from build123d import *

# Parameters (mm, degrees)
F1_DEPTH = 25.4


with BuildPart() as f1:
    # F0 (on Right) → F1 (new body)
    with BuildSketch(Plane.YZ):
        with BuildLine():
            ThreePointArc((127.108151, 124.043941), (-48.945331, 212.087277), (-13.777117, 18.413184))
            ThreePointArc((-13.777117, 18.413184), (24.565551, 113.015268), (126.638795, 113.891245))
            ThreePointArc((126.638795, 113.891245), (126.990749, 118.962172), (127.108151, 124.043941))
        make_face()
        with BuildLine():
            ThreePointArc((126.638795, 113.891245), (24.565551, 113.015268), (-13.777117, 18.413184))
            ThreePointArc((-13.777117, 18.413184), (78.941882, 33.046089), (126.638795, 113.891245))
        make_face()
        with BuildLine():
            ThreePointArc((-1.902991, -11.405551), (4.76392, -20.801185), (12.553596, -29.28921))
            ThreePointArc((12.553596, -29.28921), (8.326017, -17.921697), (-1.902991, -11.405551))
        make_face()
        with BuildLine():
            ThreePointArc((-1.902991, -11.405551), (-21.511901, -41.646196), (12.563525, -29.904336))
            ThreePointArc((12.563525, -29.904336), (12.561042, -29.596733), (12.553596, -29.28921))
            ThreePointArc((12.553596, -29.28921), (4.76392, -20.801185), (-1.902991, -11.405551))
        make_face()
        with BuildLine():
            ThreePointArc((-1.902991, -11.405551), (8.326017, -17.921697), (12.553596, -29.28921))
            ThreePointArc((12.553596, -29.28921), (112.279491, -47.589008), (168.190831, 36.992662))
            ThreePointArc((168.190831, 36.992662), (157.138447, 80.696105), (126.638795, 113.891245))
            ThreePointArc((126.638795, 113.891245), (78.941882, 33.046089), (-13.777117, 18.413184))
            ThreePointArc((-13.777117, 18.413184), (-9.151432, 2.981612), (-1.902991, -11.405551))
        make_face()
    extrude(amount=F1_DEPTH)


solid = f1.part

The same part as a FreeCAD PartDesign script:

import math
import FreeCAD as App
import Part
import Sketcher

doc = App.newDocument("Part")
params = doc.addObject("Spreadsheet::Sheet", "Params")
for row, (alias, value) in enumerate([
    ("pad1_length", "1 in"),
], start=1):
    params.set(f"A{row}", alias)
    params.set(f"B{row}", "=" + value)
    params.setAlias(f"B{row}", alias)

body = doc.addObject("PartDesign::Body", "Body")

# Sketch on YZ plane
sketch1 = body.newObject("Sketcher::SketchObject", "Sketch")
sketch1.AttachmentSupport = (doc.getObject("YZ_Plane"), [""])
sketch1.MapMode = "FlatFace"
sketch1.addGeometry([
    Part.ArcOfCircle(Part.Circle(App.Vector(17.066427, 124.043941, 0), App.Vector(0, 0, 1), 110.041724), math.radians(0), math.radians(253.722514)),  # 0
    Part.ArcOfCircle(Part.Circle(App.Vector(76.258317, 36.99265, 0), App.Vector(0, 0, 1), 91.932453), math.radians(-168.340264), math.radians(-148.233827)),  # 1
    Part.ArcOfCircle(Part.Circle(App.Vector(-6.497219, -29.904336, 0), App.Vector(0, 0, 1), 19.060744), math.radians(76.052608), math.radians(359.999999)),  # 2
    Part.ArcOfCircle(Part.Circle(App.Vector(-6.50025, -29.904409, 0), App.Vector(0, 0, 1), 19.063775), math.radians(0.00022), math.radians(1.849289)),  # 3
    Part.ArcOfCircle(Part.Circle(App.Vector(76.258346, 36.992662, 0), App.Vector(0, 0, 1), 91.932485), math.radians(-133.8642), math.radians(0)),  # 4
    Part.ArcOfCircle(Part.Circle(App.Vector(76.258343, 36.99266, 0), App.Vector(0, 0, 1), 91.932488), math.radians(0.000001), math.radians(56.769008)),  # 5
    Part.ArcOfCircle(Part.Circle(App.Vector(17.066003, 124.043958, 0), App.Vector(0, 0, 1), 110.042148), math.radians(-5.293754), math.radians(-0.000009)),  # 6
], False)
sketch1.addConstraint([
    Sketcher.Constraint("Coincident", 0, 2, 1, 1),
    Sketcher.Constraint("Coincident", 1, 2, 2, 1),
    Sketcher.Constraint("Coincident", 2, 2, 3, 1),
    Sketcher.Constraint("Coincident", 3, 2, 4, 1),
    Sketcher.Constraint("Coincident", 4, 2, 5, 1),
    Sketcher.Constraint("Coincident", 5, 2, 6, 1),
    Sketcher.Constraint("Coincident", 6, 2, 0, 1),
    Sketcher.Constraint("Coincident", 5, 3, 4, 3),
    Sketcher.Constraint("Radius", 5, 91.932488),
    Sketcher.Constraint("Radius", 6, 110.042148),
    Sketcher.Constraint("Radius", 0, 110.041724),
    Sketcher.Constraint("Radius", 1, 91.932453),
    Sketcher.Constraint("Radius", 2, 19.060744),
    Sketcher.Constraint("Radius", 3, 19.063775),
    Sketcher.Constraint("DistanceY", 5, 3, 6, 3, 87.051299),
    Sketcher.Constraint("DistanceX", 0, 2, 2, 3, 7.279898),
    Sketcher.Constraint("DistanceY", 1, 2, 1, 3, 48.398201),
    Sketcher.Constraint("DistanceY", 3, 3, 3, 2, 0.615199),
    Sketcher.Constraint("DistanceY", -1, 1, 0, 3, 124.043941),
    Sketcher.Constraint("DistanceY", -1, 1, 1, 3, 36.99265),
    Sketcher.Constraint("DistanceX", 2, 3, -1, 1, 6.497219),
    Sketcher.Constraint("DistanceY", 3, 3, -1, 1, 29.904409),
    Sketcher.Constraint("DistanceY", -1, 1, 4, 3, 36.992662),
    Sketcher.Constraint("DistanceX", -1, 1, 6, 2, 127.108151),
    Sketcher.Constraint("DistanceY", -1, 1, 6, 2, 124.043941),
    Sketcher.Constraint("DistanceY", 2, 2, 0, 2, 48.31752),
    Sketcher.Constraint("DistanceY", 4, 2, 6, 2, 87.051279),
])
pad1 = body.newObject("PartDesign::Pad", "Pad")
pad1.Profile = sketch1
pad1.setExpression("Length", "Params.pad1_length")

doc.recompute()
